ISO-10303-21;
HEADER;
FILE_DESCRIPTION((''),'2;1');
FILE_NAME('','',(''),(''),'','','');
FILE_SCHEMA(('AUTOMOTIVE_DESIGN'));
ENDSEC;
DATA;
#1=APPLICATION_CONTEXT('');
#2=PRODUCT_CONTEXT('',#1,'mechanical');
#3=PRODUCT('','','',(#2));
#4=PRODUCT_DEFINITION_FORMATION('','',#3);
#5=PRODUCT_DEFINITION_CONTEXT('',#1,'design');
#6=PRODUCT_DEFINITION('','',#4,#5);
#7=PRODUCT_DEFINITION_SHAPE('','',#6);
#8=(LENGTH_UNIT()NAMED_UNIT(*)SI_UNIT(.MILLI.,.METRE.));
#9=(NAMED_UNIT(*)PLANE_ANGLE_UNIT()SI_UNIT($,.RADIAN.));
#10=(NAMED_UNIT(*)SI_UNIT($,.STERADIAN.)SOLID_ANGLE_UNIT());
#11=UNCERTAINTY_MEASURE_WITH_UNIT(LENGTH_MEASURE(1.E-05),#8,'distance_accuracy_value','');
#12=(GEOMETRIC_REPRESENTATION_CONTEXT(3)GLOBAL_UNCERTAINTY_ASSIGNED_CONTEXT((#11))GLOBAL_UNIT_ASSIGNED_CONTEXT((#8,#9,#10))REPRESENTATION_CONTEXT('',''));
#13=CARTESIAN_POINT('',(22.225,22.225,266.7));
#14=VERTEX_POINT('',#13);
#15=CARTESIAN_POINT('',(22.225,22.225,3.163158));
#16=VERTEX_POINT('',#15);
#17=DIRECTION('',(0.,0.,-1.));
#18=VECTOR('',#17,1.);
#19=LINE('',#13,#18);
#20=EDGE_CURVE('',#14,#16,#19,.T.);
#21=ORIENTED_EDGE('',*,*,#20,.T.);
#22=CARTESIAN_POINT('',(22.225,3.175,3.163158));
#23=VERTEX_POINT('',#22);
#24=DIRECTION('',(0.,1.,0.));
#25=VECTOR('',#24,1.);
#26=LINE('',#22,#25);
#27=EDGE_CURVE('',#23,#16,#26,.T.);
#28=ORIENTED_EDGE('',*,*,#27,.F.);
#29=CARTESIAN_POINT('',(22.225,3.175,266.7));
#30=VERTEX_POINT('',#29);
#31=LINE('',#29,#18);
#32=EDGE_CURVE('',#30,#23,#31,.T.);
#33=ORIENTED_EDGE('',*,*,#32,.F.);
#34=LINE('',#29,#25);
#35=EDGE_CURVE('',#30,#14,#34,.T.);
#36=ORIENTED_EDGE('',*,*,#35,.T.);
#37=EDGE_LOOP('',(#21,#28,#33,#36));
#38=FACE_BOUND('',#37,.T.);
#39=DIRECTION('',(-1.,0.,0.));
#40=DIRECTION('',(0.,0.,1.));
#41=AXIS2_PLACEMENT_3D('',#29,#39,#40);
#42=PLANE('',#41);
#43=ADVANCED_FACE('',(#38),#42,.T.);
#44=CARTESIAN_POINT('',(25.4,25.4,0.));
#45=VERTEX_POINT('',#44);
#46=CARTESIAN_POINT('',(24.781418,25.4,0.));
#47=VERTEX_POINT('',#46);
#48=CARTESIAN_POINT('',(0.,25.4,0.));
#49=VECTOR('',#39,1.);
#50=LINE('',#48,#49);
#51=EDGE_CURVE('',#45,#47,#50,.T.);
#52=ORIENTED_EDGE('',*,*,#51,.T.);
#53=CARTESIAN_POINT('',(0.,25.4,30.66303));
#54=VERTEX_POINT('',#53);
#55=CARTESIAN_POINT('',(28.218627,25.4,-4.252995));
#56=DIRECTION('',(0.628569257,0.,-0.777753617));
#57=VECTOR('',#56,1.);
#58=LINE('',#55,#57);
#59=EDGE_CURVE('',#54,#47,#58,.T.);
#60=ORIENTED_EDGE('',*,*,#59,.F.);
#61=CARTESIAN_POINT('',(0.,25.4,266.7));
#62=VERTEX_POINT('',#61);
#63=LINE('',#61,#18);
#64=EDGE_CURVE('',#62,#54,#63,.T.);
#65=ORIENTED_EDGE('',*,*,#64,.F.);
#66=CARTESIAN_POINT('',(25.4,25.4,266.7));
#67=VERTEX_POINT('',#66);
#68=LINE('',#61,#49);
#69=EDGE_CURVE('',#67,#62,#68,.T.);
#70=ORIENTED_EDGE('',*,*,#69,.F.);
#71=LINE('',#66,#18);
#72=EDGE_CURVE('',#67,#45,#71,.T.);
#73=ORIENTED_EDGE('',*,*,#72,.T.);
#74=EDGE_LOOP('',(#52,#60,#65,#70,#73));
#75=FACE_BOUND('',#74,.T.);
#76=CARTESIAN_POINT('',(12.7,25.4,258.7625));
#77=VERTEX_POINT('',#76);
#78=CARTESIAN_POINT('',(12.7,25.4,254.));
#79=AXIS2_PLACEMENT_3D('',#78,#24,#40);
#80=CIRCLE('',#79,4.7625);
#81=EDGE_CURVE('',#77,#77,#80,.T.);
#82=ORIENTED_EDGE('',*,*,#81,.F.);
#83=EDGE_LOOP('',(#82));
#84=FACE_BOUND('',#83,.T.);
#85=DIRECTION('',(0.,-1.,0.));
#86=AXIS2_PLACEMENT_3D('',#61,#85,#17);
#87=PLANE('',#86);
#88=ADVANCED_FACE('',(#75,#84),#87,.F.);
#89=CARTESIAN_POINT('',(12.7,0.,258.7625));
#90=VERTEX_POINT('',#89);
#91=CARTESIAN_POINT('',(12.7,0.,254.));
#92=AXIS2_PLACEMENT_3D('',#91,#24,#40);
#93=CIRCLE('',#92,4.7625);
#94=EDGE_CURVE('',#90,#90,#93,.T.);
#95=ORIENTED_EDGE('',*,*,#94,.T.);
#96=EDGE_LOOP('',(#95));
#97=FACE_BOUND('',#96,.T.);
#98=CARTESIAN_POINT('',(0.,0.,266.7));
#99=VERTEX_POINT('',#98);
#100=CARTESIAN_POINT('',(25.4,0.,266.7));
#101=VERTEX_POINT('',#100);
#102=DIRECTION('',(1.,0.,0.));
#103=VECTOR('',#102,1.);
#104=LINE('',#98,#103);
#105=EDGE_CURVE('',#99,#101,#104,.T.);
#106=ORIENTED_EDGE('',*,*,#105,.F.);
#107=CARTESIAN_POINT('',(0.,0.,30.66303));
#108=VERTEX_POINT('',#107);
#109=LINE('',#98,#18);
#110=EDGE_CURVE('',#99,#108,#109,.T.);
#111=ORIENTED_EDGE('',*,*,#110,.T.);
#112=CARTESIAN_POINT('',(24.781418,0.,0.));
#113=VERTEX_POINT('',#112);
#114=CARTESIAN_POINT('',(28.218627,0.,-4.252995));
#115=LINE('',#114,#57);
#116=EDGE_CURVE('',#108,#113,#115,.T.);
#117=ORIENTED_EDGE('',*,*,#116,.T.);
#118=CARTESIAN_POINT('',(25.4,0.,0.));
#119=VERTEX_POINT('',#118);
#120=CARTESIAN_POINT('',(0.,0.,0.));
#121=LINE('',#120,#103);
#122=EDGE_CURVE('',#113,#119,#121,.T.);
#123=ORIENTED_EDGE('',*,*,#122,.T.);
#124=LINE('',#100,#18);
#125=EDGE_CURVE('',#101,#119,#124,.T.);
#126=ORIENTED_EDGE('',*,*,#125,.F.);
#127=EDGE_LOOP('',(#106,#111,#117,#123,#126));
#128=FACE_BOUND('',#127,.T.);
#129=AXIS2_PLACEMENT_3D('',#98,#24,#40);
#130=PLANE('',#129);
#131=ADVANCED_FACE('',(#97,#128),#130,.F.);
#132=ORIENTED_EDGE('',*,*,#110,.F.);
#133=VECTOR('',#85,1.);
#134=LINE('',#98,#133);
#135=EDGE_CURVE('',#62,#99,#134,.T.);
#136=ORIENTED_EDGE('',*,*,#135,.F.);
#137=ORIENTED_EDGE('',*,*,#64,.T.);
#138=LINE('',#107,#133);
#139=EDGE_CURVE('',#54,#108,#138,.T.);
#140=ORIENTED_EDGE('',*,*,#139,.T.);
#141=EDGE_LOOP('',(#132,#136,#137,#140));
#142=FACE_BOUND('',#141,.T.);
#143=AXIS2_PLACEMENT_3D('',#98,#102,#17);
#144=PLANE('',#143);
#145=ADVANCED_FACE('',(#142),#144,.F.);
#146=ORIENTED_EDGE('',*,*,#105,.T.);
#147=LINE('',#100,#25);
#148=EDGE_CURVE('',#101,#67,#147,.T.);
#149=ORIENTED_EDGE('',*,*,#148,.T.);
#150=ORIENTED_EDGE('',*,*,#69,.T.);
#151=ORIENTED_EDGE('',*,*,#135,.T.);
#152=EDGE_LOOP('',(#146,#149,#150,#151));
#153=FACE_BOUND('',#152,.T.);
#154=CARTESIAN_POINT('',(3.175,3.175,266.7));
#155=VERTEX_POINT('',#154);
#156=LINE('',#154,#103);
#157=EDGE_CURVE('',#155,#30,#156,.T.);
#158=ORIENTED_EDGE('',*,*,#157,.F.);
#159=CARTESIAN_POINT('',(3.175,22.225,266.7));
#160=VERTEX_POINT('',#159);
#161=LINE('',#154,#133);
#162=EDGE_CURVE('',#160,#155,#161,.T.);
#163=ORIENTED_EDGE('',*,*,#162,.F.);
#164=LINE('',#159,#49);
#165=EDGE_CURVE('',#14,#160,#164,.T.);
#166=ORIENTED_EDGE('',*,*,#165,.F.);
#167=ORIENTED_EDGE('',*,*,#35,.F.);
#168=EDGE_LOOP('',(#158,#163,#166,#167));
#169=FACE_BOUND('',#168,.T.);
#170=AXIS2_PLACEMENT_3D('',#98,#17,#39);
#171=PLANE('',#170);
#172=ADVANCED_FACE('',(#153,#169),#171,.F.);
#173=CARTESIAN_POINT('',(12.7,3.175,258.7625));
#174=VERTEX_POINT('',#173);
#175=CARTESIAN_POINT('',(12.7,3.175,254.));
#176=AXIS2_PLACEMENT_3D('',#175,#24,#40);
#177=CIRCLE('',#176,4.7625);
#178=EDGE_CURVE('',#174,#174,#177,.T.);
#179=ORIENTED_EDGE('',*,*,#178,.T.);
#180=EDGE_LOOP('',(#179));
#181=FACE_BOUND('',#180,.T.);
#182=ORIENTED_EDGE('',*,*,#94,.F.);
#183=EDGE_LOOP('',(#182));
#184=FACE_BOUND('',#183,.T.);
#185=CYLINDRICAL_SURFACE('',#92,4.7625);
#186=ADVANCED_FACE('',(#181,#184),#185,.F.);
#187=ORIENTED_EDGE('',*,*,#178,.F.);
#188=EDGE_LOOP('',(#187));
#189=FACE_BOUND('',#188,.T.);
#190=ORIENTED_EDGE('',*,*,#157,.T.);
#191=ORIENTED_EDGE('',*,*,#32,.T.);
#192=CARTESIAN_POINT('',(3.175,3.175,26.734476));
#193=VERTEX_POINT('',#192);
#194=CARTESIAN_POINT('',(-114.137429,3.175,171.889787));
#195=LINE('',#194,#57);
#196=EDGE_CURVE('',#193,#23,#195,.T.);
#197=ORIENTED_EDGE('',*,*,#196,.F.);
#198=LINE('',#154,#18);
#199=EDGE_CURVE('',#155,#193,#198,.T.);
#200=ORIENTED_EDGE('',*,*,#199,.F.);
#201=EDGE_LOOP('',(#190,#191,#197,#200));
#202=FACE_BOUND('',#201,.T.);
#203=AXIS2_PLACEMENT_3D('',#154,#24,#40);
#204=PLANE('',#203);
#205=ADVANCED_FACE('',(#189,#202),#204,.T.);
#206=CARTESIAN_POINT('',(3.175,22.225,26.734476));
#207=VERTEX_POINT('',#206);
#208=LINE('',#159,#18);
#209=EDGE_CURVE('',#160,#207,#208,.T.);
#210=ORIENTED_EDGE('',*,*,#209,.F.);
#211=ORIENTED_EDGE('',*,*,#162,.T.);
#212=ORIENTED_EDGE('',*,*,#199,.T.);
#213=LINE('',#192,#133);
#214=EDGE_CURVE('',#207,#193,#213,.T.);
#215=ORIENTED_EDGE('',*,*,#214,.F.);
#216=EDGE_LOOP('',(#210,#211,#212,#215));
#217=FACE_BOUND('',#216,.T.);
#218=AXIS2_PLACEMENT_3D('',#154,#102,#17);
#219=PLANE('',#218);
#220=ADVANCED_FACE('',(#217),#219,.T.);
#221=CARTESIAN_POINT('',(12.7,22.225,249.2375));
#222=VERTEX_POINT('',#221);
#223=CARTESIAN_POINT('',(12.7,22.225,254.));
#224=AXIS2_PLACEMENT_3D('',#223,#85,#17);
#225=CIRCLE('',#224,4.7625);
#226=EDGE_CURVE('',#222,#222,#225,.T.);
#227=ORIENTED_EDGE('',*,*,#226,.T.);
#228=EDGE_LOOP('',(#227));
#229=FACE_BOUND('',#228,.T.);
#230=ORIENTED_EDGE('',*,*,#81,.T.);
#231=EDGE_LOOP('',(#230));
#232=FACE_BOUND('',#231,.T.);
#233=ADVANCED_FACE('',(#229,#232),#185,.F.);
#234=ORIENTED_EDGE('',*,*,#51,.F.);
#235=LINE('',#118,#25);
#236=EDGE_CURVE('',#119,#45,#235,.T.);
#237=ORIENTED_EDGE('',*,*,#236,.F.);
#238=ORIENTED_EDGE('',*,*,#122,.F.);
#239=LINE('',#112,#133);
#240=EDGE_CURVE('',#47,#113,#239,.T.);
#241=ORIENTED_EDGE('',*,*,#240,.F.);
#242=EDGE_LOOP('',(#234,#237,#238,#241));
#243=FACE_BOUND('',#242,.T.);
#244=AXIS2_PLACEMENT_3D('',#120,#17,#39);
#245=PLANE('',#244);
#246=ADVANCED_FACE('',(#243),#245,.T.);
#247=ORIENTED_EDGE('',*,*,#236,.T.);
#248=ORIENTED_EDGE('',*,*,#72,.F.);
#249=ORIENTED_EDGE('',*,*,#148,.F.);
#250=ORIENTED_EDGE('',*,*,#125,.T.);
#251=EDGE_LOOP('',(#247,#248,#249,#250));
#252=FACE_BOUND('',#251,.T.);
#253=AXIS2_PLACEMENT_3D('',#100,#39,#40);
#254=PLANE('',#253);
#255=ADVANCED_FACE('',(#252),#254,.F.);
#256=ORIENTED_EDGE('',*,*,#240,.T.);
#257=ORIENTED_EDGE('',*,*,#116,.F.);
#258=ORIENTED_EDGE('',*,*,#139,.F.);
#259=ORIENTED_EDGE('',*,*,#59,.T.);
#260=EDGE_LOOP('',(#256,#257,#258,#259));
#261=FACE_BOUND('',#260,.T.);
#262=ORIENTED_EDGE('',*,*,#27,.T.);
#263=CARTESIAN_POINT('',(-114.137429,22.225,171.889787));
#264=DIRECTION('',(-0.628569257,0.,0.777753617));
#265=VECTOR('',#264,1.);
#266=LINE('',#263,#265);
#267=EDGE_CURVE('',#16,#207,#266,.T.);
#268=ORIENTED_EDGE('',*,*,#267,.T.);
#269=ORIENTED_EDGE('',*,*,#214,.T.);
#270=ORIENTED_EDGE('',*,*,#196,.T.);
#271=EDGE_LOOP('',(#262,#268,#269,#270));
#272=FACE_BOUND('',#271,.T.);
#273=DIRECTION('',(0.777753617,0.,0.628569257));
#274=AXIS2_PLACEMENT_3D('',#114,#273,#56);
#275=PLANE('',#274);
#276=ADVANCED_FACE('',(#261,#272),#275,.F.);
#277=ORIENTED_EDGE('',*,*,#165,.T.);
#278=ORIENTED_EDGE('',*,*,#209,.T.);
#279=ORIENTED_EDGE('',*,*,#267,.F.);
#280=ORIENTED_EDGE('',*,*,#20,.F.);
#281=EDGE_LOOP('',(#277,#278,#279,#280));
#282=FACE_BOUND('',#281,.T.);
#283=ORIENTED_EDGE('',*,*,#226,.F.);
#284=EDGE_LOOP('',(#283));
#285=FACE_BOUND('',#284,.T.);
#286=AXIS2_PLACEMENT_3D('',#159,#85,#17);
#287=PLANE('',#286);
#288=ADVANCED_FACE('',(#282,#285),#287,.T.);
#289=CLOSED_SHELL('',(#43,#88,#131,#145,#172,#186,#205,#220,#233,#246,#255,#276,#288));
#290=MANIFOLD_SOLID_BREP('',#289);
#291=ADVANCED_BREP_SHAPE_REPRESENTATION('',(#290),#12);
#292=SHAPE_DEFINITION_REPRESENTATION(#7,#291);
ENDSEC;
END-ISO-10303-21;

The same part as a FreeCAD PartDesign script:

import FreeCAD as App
import Part
import Sketcher

V = App.Vector
Q = App.Units.Quantity

doc = App.newDocument("Part")
body = doc.addObject("PartDesign::Body", "Body")

# Sketch on XY plane
sketch1 = doc.addObject("Sketcher::SketchObject", "Sketch")
body.addObject(sketch1)
sketch1.AttachmentSupport = (doc.XY_Plane, [""])
sketch1.MapMode = "FlatFace"
sketch1.addGeometry([
    Part.LineSegment(V(0, 25, 0), V(0, 0, 0)),  # 0
    Part.LineSegment(V(0, 0, 0), V(25, 0, 0)),  # 1
    Part.LineSegment(V(25, 0, 0), V(25, 25, 0)),  # 2
    Part.LineSegment(V(25, 25, 0), V(0, 25, 0)),  # 3
    Part.LineSegment(V(22, 3, 0), V(3, 3, 0)),  # 4
    Part.LineSegment(V(3, 3, 0), V(3, 22, 0)),  # 5
    Part.LineSegment(V(3, 22, 0), V(22, 22, 0)),  # 6
    Part.LineSegment(V(22, 22, 0), V(22, 3, 0)),  # 7
], False)
sketch1.addConstraint([
    Sketcher.Constraint("Coincident", 0, 2, 1, 1),
    Sketcher.Constraint("Coincident", 1, 2, 2, 1),
    Sketcher.Constraint("Coincident", 2, 2, 3, 1),
    Sketcher.Constraint("Coincident", 3, 2, 0, 1),
    Sketcher.Constraint("Coincident", 4, 2, 5, 1),
    Sketcher.Constraint("Coincident", 5, 2, 6, 1),
    Sketcher.Constraint("Coincident", 6, 2, 7, 1),
    Sketcher.Constraint("Coincident", 7, 2, 4, 1),
    Sketcher.Constraint("Vertical", 0),
    Sketcher.Constraint("Horizontal", 1),
    Sketcher.Constraint("Vertical", 2),
    Sketcher.Constraint("Horizontal", 3),
    Sketcher.Constraint("Horizontal", 4),
    Sketcher.Constraint("Vertical", 5),
    Sketcher.Constraint("Horizontal", 6),
    Sketcher.Constraint("Vertical", 7),
    Sketcher.Constraint("Coincident", 0, 2, -1, 1),
    Sketcher.Constraint("Equal", 3, 0),
    Sketcher.Constraint("Equal", 6, 5),
    Sketcher.Constraint("DistanceX", 1, 1, 1, 2, Q("1 in")),
    Sketcher.Constraint("DistanceX", 4, 2, 4, 1, Q("0.75 in")),
    Sketcher.Constraint("DistanceX", -1, 1, 4, 2, Q("0.125 in")),
    Sketcher.Constraint("DistanceY", -1, 1, 4, 2, Q("0.125 in")),
])
pad1 = doc.addObject("PartDesign::Pad", "Pad")
body.addObject(pad1)
pad1.Profile = sketch1
pad1.Length = Q("10.5 in")

# Sketch on XZ plane
sketch2 = doc.addObject("Sketcher::SketchObject", "Sketch001")
body.addObject(sketch2)
sketch2.AttachmentSupport = (doc.XZ_Plane, [""])
sketch2.MapMode = "FlatFace"
sketch2.AttachmentOffset = App.Placement(V(0, 0, -1 * 25.4), App.Rotation())
sketch2.addGeometry([
    Part.LineSegment(V(-39, 78, 0), V(28, -4, 0)),
    Part.LineSegment(V(28, -4, 0), V(-14, -75, 0)),
    Part.LineSegment(V(-14, -75, 0), V(-122, -10, 0)),
    Part.LineSegment(V(-122, -10, 0), V(-39, 78, 0)),
], False)
sketch2.addConstraint([
    Sketcher.Constraint("Coincident", 0, 2, 1, 1),
    Sketcher.Constraint("Coincident", 1, 2, 2, 1),
    Sketcher.Constraint("Coincident", 2, 2, 3, 1),
    Sketcher.Constraint("Coincident", 3, 2, 0, 1),
    Sketcher.Constraint("Perpendicular", 1, 2),
    Sketcher.Constraint("DistanceX", 2, 2, 1, 2, 107.385201),
    Sketcher.Constraint("Distance", 1, 82.636489),
    Sketcher.Constraint("Distance", 2, 125.412491),
    Sketcher.Constraint("DistanceX", 1, 2, -1, 1, 14.467388),
    Sketcher.Constraint("DistanceX", 3, 2, -1, 1, 38.643181),
    Sketcher.Constraint("DistanceY", 0, 2, 3, 2, 82.730761),
    Sketcher.Constraint("DistanceY", 0, 2, -1, 1, 4.252995),
])
pocket1 = doc.addObject("PartDesign::Pocket", "Pocket")
body.addObject(pocket1)
pocket1.Profile = sketch2
pocket1.Type = "ThroughAll"
pocket1.Reversed = True

# Sketch on XZ plane
sketch3 = doc.addObject("Sketcher::SketchObject", "Sketch002")
body.addObject(sketch3)
sketch3.AttachmentSupport = (doc.XZ_Plane, [""])
sketch3.MapMode = "FlatFace"
sketch3.AttachmentOffset = App.Placement(V(0, 0, -1 * 25.4), App.Rotation())
sketch3.addGeometry(Part.Circle(V(12.7, 254, 0), V(0, 0, 1), 4.8), False)
sketch3.addConstraint([
    Sketcher.Constraint("Diameter", 0, Q("0.375 in")),
    Sketcher.Constraint("DistanceY", -1, 1, 0, 3, Q("10 in")),
    Sketcher.Constraint("DistanceX", -1, 1, 0, 3, Q("0.5 in")),
])
pocket2 = doc.addObject("PartDesign::Pocket", "Pocket001")
body.addObject(pocket2)
pocket2.Profile = sketch3
pocket2.Type = "ThroughAll"
pocket2.Reversed = True

doc.recompute()
